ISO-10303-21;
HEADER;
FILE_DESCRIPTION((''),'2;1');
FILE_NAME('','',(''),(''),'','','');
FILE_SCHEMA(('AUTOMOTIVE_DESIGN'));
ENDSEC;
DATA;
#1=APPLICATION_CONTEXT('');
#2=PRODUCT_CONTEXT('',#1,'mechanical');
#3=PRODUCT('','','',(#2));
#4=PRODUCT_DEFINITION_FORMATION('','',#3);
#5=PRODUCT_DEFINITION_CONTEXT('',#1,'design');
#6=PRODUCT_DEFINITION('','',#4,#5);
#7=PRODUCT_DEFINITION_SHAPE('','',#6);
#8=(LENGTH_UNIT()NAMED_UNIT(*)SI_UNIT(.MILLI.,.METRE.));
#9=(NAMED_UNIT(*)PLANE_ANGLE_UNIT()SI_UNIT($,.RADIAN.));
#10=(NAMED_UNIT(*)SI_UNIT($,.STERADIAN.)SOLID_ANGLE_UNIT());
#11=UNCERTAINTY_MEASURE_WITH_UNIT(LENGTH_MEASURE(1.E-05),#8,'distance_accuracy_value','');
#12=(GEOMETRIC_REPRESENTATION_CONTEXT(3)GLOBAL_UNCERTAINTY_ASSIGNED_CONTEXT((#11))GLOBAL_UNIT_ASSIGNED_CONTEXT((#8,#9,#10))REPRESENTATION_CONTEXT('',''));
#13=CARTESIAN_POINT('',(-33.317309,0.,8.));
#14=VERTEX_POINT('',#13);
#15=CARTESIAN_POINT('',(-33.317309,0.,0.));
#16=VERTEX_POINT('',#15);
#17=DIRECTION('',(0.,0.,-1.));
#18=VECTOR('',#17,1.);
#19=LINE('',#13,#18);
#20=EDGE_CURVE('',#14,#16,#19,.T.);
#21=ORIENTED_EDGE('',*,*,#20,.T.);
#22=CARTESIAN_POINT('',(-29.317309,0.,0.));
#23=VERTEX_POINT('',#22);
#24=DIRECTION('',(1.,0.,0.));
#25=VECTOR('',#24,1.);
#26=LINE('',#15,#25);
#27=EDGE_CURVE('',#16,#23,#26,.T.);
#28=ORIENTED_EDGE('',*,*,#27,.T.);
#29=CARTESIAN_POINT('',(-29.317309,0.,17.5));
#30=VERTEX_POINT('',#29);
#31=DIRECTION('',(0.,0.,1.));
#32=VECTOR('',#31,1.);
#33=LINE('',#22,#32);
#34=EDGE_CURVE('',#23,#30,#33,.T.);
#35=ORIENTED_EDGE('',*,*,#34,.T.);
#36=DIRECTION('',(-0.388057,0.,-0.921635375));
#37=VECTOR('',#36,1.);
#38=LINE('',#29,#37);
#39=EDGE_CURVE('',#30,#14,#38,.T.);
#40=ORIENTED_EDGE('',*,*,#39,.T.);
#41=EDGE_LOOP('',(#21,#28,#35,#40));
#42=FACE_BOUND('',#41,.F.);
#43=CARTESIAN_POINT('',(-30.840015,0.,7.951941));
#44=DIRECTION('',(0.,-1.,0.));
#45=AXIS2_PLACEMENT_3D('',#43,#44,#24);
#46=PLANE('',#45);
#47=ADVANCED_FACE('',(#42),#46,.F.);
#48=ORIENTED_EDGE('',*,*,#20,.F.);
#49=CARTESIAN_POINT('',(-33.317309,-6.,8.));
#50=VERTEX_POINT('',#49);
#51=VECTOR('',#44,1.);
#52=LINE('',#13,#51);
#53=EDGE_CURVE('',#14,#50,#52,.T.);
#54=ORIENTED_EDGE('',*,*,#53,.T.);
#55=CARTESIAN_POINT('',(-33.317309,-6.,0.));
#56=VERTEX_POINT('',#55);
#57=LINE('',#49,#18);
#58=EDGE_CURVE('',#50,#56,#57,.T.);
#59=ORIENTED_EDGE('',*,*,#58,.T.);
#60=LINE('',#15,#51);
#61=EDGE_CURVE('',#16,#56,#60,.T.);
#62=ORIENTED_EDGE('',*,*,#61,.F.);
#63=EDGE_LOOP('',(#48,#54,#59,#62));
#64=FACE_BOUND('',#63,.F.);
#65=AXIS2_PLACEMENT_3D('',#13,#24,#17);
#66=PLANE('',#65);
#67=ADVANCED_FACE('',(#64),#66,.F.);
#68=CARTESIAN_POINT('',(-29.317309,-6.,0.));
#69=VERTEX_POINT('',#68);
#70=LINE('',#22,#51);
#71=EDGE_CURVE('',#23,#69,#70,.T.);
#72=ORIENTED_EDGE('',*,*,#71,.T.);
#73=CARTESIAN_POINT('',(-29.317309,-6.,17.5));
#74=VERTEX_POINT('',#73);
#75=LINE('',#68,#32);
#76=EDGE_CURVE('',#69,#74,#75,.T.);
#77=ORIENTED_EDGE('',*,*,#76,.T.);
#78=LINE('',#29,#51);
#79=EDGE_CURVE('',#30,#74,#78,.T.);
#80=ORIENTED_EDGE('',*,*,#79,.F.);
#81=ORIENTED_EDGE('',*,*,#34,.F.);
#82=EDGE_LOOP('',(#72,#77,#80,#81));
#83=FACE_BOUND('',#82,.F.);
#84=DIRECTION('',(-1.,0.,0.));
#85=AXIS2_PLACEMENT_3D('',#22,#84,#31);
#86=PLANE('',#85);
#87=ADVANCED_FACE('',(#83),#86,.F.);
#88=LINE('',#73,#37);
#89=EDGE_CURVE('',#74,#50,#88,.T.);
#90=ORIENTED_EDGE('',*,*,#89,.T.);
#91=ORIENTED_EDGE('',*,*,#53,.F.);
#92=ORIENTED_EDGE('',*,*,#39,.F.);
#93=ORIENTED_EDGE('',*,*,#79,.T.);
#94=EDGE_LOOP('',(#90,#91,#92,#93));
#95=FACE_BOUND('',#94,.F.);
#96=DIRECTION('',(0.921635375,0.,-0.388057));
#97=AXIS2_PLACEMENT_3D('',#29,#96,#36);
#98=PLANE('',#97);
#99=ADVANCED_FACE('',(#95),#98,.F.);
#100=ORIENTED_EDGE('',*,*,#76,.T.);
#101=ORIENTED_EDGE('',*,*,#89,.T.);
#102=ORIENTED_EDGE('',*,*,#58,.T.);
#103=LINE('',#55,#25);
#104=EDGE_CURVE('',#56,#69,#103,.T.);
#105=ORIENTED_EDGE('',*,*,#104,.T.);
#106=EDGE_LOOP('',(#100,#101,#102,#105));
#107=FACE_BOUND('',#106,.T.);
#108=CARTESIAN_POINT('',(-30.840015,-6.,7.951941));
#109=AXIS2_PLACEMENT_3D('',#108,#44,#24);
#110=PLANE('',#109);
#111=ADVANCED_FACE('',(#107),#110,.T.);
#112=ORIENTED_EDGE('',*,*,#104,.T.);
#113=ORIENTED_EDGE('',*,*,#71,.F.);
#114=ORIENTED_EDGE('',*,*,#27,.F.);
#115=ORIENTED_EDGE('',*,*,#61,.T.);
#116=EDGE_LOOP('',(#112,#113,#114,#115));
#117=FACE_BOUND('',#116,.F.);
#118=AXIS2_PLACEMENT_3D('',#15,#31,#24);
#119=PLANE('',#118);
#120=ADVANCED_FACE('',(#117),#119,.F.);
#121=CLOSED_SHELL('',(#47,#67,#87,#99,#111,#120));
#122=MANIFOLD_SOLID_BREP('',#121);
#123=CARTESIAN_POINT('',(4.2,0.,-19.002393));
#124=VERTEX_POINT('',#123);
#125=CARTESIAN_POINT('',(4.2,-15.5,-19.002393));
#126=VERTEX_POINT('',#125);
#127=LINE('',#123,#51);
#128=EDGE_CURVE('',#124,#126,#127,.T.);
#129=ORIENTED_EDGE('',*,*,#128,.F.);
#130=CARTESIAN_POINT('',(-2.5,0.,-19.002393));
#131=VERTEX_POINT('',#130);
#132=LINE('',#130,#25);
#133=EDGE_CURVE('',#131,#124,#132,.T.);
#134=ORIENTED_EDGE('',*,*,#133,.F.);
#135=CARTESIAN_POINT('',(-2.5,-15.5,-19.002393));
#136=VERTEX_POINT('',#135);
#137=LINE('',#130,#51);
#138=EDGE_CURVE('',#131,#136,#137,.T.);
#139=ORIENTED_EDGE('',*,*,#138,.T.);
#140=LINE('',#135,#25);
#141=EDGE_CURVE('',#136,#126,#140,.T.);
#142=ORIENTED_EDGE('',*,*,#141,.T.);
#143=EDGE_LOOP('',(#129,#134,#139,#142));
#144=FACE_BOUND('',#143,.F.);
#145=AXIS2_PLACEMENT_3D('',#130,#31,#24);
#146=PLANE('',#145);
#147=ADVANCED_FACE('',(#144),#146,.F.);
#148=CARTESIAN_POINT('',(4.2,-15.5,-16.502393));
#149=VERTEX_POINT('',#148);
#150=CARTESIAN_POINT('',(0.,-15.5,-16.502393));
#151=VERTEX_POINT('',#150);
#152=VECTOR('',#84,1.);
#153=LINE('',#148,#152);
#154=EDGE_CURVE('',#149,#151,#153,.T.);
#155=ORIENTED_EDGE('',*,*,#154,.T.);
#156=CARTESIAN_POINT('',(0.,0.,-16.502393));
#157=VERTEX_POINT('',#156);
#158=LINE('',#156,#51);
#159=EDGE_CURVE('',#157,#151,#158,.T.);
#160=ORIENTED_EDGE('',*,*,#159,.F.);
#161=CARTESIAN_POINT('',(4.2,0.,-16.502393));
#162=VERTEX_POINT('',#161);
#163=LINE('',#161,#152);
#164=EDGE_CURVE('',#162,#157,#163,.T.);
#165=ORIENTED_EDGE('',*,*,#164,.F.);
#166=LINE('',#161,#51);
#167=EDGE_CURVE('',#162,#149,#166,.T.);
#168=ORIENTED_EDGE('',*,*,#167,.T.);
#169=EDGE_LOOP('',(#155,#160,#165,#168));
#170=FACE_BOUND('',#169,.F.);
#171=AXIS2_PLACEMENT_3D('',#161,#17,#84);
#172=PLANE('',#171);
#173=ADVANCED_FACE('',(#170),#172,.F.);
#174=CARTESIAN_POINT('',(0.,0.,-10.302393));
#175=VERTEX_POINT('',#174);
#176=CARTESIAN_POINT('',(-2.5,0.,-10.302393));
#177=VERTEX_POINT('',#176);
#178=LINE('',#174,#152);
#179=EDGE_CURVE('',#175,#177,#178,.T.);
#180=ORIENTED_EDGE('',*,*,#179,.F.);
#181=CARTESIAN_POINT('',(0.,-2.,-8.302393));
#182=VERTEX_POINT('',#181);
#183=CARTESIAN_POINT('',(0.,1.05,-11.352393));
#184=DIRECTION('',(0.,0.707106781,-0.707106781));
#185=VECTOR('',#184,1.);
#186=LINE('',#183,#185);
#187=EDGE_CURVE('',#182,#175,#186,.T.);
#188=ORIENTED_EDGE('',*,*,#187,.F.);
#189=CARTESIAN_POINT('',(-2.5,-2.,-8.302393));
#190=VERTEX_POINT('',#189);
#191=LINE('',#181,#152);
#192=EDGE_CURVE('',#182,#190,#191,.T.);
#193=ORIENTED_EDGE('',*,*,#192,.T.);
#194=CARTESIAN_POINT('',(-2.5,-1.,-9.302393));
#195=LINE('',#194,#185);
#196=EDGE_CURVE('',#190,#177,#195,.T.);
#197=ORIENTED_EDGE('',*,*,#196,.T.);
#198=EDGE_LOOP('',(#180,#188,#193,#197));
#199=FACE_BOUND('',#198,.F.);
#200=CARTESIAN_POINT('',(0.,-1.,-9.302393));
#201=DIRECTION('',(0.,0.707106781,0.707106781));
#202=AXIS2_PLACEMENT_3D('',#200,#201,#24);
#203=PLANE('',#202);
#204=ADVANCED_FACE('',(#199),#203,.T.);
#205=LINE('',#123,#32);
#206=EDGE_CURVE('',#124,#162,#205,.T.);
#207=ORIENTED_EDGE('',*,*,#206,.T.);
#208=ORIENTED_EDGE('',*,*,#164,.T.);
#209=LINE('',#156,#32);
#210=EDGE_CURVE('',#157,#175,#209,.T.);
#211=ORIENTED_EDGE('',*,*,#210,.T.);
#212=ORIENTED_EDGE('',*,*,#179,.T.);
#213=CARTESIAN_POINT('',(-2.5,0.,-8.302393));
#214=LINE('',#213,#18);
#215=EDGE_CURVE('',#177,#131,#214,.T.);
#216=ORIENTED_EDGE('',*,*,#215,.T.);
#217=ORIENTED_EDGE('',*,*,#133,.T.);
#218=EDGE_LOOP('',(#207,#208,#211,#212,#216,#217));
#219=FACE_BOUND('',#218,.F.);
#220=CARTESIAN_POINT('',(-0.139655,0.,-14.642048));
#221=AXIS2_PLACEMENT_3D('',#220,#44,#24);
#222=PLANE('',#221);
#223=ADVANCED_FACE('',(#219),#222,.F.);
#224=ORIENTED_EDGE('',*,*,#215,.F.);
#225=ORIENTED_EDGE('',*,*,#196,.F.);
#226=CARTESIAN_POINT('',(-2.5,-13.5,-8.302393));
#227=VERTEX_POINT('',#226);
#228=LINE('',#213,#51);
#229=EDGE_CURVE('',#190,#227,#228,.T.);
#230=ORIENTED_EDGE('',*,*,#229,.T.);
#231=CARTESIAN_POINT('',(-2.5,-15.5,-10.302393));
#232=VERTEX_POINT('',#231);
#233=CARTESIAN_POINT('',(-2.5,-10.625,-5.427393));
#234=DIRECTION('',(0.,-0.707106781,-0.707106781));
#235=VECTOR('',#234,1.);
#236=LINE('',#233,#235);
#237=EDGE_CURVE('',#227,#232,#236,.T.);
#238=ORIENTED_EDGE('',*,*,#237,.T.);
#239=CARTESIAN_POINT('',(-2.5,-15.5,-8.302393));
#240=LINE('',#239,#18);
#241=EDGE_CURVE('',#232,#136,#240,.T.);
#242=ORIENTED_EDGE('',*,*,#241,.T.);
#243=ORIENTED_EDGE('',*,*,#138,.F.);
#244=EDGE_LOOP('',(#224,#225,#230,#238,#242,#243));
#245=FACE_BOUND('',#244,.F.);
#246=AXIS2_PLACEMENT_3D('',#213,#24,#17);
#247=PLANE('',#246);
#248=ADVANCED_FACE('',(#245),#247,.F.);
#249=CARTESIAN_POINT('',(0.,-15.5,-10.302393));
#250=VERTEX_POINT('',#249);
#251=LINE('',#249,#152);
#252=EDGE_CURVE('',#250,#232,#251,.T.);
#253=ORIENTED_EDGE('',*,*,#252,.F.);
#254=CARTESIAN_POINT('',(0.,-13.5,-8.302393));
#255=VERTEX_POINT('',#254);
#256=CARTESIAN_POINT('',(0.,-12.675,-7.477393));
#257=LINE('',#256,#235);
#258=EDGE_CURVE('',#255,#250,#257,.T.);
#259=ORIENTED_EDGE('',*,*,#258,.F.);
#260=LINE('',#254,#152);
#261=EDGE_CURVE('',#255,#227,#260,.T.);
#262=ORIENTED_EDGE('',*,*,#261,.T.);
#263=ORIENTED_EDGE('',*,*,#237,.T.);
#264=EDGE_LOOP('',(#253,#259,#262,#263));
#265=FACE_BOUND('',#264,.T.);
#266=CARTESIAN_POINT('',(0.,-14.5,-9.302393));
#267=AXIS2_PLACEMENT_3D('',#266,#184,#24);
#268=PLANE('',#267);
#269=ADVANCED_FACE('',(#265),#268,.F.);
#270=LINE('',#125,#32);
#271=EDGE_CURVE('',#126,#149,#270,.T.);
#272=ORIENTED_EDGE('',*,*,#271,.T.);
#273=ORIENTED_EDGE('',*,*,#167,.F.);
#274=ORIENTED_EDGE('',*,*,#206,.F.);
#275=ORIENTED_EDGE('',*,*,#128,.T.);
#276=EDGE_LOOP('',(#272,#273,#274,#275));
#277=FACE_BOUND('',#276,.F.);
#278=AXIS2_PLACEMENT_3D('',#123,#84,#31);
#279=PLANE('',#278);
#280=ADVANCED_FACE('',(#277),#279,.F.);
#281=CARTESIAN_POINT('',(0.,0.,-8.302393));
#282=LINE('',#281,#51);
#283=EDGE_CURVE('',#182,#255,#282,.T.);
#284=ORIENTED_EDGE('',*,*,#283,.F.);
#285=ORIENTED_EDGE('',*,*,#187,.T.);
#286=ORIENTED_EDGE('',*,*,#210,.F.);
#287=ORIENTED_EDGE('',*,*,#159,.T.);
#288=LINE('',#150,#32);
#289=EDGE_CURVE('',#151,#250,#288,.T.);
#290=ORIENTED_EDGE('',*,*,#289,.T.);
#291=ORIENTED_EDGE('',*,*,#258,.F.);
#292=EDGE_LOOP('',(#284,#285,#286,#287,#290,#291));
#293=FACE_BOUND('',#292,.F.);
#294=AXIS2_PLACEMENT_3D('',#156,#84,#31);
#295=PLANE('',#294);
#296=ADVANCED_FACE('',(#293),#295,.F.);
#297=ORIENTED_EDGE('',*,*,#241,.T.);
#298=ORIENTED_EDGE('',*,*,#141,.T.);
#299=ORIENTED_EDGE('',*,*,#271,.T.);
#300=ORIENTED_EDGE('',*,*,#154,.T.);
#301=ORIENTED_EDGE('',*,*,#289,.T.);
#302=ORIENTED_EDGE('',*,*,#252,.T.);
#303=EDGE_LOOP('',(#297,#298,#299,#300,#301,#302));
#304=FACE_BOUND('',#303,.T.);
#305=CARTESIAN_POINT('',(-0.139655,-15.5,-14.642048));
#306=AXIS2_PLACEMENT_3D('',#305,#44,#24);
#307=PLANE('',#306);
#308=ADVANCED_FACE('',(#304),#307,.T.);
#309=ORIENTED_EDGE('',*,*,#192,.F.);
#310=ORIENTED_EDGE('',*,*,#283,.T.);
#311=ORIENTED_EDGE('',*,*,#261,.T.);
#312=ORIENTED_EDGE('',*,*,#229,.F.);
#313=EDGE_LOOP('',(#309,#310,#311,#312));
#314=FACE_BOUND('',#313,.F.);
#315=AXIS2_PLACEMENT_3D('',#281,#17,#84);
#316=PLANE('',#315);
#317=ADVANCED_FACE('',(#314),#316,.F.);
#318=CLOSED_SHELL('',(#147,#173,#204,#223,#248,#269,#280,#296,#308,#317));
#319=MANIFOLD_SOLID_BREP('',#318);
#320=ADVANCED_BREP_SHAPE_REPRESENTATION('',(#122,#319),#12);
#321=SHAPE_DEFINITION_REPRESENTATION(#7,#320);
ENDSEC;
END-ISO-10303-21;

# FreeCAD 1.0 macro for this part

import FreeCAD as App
import Part
import Sketcher
Q = App.Units.Quantity


def edges_at(feature, points):
    """Names of the edges that pass closest to the given points."""
    edges = feature.Shape.Edges
    near = lambda p: min(range(len(edges)), key=lambda i: edges[i].distToShape(Part.Vertex(*p))[0])
    return sorted({f"Edge{near(p) + 1}" for p in points})


def add_polygon(sketch, points):
    """Adds a closed chain of lines whose ends are joined by coincident constraints."""
    first, n = sketch.GeometryCount, len(points)
    for a, b in zip(points, points[1:] + points[:1]):
        sketch.addGeometry(Part.LineSegment(App.Vector(*a, 0), App.Vector(*b, 0)), False)
    for i in range(n):
        sketch.addConstraint(Sketcher.Constraint("Coincident", first + i, 2, first + (i + 1) % n, 1))

doc = App.newDocument("Part")
params = doc.addObject("Spreadsheet::Sheet", "Params")
for row, (alias, value) in enumerate([
    ("sketch1_width", "2.5 mm"),
    ("sketch1_width2", "6.7 mm"),
    ("sketch1_height", "10.7 mm"),
    ("pad1_length", "15.5 mm"),
    ("chamfer_size", "2 mm"),
    ("chamfer2_size", "2 mm"),
    ("sketch2_width", "4 mm"),
    ("sketch2_height", "8 mm"),
    ("sketch2_height2", "17.5 mm"),
    ("pad2_length", "6 mm"),
], start=1):
    params.set(f"A{row}", alias)
    params.set(f"B{row}", "=" + value)
    params.setAlias(f"B{row}", alias)

body = doc.addObject("PartDesign::Body", "Body")

# Sketch on XZ plane
sketch1 = body.newObject("Sketcher::SketchObject", "Sketch")
sketch1.AttachmentSupport = (doc.getObject("XZ_Plane"), [""])
sketch1.MapMode = "FlatFace"
add_polygon(sketch1, [(0, -8.3), (-2.5, -8.3), (-2.5, -19), (4.2, -19), (4.2, -16.5), (0, -16.5)])  # lines 0-5
sketch1.addConstraint([
    Sketcher.Constraint("Horizontal", 0),
    Sketcher.Constraint("Vertical", 1),
    Sketcher.Constraint("Horizontal", 2),
    Sketcher.Constraint("Vertical", 3),
    Sketcher.Constraint("Horizontal", 4),
    Sketcher.Constraint("Vertical", 5),
    Sketcher.Constraint("PointOnObject", 4, 2, -2),
    Sketcher.Constraint("Equal", 0, 3),
    Sketcher.Constraint("DistanceX", 0, 2, 0, 1, Q("2.5 mm")),
    Sketcher.Constraint("DistanceX", 2, 1, 2, 2, Q("6.7 mm")),
    Sketcher.Constraint("DistanceY", 1, 2, 1, 1, Q("10.7 mm")),
    Sketcher.Constraint("DistanceY", 0, 2, -1, 1, Q("8.302393 mm")),
])
sketch1.setExpression("Constraints[14]", "Params.sketch1_width")
sketch1.setExpression("Constraints[15]", "Params.sketch1_width2")
sketch1.setExpression("Constraints[16]", "Params.sketch1_height")
pad1 = body.newObject("PartDesign::Pad", "Pad")
pad1.Profile = sketch1
pad1.setExpression("Length", "Params.pad1_length")
doc.recompute()

chamfer = body.newObject("PartDesign::Chamfer", "Chamfer")
chamfer.Base = (pad1, edges_at(pad1, [(-1.25, -15.5, -8.302)]))
chamfer.setExpression("Size", "Params.chamfer_size")
doc.recompute()

chamfer2 = body.newObject("PartDesign::Chamfer", "Chamfer001")
chamfer2.Base = (chamfer, edges_at(chamfer, [(-1.25, 0, -8.302)]))
chamfer2.setExpression("Size", "Params.chamfer2_size")
body2 = doc.addObject("PartDesign::Body", "Body001")

# Sketch on XZ plane
sketch2 = body2.newObject("Sketcher::SketchObject", "Sketch001")
sketch2.AttachmentSupport = (doc.getObject("XZ_Plane001"), [""])
sketch2.MapMode = "FlatFace"
add_polygon(sketch2, [(-33.3, 0), (-29.3, 0), (-29.3, 17.5), (-33.3, 8)])  # lines 0-3
sketch2.addConstraint([
    Sketcher.Constraint("Horizontal", 0),
    Sketcher.Constraint("Vertical", 1),
    Sketcher.Constraint("Vertical", 3),
    Sketcher.Constraint("PointOnObject", 0, 2, -1),
    Sketcher.Constraint("DistanceX", 0, 1, 0, 2, Q("4 mm")),
    Sketcher.Constraint("DistanceY", 3, 2, 3, 1, Q("8 mm")),
    Sketcher.Constraint("DistanceY", 1, 1, 1, 2, Q("17.5 mm")),
    Sketcher.Constraint("DistanceX", 0, 2, -1, 1, Q("29.317309 mm")),
])
sketch2.setExpression("Constraints[8]", "Params.sketch2_width")
sketch2.setExpression("Constraints[9]", "Params.sketch2_height")
sketch2.setExpression("Constraints[10]", "Params.sketch2_height2")
pad2 = body2.newObject("PartDesign::Pad", "Pad001")
pad2.Profile = sketch2
pad2.setExpression("Length", "Params.pad2_length")

doc.recompute()
